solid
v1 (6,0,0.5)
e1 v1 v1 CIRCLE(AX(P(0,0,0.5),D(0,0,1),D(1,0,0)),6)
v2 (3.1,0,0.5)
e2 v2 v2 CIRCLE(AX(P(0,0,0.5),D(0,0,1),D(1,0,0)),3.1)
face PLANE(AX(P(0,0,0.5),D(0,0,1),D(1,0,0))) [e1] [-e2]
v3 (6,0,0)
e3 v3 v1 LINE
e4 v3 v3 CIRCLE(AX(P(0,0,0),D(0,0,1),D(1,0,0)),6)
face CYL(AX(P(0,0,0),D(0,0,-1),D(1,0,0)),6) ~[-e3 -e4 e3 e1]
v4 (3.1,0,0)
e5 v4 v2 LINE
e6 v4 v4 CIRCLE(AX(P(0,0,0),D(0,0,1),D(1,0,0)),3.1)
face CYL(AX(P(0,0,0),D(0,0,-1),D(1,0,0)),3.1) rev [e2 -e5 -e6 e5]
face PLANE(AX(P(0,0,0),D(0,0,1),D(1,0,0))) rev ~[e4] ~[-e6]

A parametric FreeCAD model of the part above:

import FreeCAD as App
import Part
import Sketcher
Q = App.Units.Quantity

doc = App.newDocument("Part")
body = doc.addObject("PartDesign::Body", "Body")

# Sketch on XY plane
sketch1 = body.newObject("Sketcher::SketchObject", "Sketch")
sketch1.AttachmentSupport = (doc.getObject("XY_Plane"), [""])
sketch1.MapMode = "FlatFace"
sketch1.addGeometry(Part.Circle(App.Vector(0, 0, 0), App.Vector(0, 0, 1), 6), False)
sketch1.addGeometry(Part.Circle(App.Vector(0, 0, 0), App.Vector(0, 0, 1), 3.1), False)
sketch1.addConstraint(Sketcher.Constraint("Coincident", 0, 3, -1, 1))
sketch1.addConstraint(Sketcher.Constraint("Coincident", 1, 3, -1, 1))
sketch1.addConstraint(Sketcher.Constraint("Diameter", 0, Q("12 mm")))
sketch1.addConstraint(Sketcher.Constraint("Diameter", 1, Q("6.2 mm")))
pad1 = body.newObject("PartDesign::Pad", "Pad")
pad1.Profile = sketch1
pad1.Length = 0.5

doc.recompute()
